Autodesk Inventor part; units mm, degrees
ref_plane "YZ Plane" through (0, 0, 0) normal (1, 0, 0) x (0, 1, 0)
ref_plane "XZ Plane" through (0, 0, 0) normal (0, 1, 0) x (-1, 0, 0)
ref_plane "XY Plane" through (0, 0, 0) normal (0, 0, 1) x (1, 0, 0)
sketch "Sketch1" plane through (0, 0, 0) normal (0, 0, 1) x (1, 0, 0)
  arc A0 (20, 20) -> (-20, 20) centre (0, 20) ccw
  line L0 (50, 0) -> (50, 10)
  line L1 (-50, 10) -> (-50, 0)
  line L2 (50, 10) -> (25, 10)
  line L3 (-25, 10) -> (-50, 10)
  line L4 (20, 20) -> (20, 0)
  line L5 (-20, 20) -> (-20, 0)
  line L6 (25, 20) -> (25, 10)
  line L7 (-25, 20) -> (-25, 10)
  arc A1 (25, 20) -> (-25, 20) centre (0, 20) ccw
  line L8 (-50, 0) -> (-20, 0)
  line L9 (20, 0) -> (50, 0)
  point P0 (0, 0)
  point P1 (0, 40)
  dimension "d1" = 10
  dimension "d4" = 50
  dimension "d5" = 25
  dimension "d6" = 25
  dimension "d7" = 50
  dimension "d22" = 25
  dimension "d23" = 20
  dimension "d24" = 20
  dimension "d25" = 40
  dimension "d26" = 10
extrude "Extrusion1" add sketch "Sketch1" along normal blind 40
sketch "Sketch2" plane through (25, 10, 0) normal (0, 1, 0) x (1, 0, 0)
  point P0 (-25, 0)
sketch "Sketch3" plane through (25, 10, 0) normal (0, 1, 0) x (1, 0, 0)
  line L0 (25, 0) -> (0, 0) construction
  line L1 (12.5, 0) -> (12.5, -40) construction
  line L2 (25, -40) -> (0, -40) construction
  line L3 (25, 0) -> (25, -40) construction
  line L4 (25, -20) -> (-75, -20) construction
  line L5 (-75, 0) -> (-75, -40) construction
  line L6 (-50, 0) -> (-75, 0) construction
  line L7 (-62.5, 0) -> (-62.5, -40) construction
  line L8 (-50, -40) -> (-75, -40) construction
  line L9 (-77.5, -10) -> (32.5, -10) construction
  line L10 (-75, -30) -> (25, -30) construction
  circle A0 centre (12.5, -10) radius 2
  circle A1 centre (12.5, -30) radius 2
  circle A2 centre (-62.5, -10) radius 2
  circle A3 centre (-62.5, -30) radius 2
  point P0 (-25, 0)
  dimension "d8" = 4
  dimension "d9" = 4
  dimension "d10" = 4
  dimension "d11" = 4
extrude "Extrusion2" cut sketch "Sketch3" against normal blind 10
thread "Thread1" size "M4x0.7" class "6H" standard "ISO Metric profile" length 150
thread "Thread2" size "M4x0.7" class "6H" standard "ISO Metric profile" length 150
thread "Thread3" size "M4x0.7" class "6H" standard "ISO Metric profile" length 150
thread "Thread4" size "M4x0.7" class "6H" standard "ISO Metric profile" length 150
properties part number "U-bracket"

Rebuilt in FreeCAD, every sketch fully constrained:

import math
import FreeCAD as App
import Part
import Sketcher
Q = App.Units.Quantity

doc = App.newDocument("Part")
body = doc.addObject("PartDesign::Body", "Body")

# Sketch on XY plane
sketch1 = doc.addObject("Sketcher::SketchObject", "Sketch")
body.addObject(sketch1)
sketch1.AttachmentSupport = (doc.XY_Plane, [""])
sketch1.MapMode = "FlatFace"
sketch1.addGeometry(Part.ArcOfCircle(Part.Circle(App.Vector(0, 20, 0), App.Vector(0, 0, 1), 20), math.radians(0), math.radians(180)), False)
sketch1.addGeometry(Part.LineSegment(App.Vector(20, 20, 0), App.Vector(20, 0, 0)), False)
sketch1.addGeometry(Part.LineSegment(App.Vector(20, 0, 0), App.Vector(50, 0, 0)), False)
sketch1.addGeometry(Part.LineSegment(App.Vector(50, 0, 0), App.Vector(50, 10, 0)), False)
sketch1.addGeometry(Part.LineSegment(App.Vector(50, 10, 0), App.Vector(25, 10, 0)), False)
sketch1.addGeometry(Part.LineSegment(App.Vector(25, 10, 0), App.Vector(25, 20, 0)), False)
sketch1.addGeometry(Part.ArcOfCircle(Part.Circle(App.Vector(0, 20, 0), App.Vector(0, 0, 1), 25), math.radians(0), math.radians(180)), False)
sketch1.addGeometry(Part.LineSegment(App.Vector(-25, 20, 0), App.Vector(-25, 10, 0)), False)
sketch1.addGeometry(Part.LineSegment(App.Vector(-25, 10, 0), App.Vector(-50, 10, 0)), False)
sketch1.addGeometry(Part.LineSegment(App.Vector(-50, 10, 0), App.Vector(-50, 0, 0)), False)
sketch1.addGeometry(Part.LineSegment(App.Vector(-50, 0, 0), App.Vector(-20, 0, 0)), False)
sketch1.addGeometry(Part.LineSegment(App.Vector(-20, 0, 0), App.Vector(-20, 20, 0)), False)
sketch1.addConstraint(Sketcher.Constraint("Tangent", 0, 1, 1, 1))
sketch1.addConstraint(Sketcher.Constraint("Coincident", 1, 2, 2, 1))
sketch1.addConstraint(Sketcher.Constraint("Coincident", 2, 2, 3, 1))
sketch1.addConstraint(Sketcher.Constraint("Coincident", 3, 2, 4, 1))
sketch1.addConstraint(Sketcher.Constraint("Coincident", 4, 2, 5, 1))
sketch1.addConstraint(Sketcher.Constraint("Tangent", 5, 2, 6, 1))
sketch1.addConstraint(Sketcher.Constraint("Tangent", 6, 2, 7, 1))
sketch1.addConstraint(Sketcher.Constraint("Coincident", 7, 2, 8, 1))
sketch1.addConstraint(Sketcher.Constraint("Coincident", 8, 2, 9, 1))
sketch1.addConstraint(Sketcher.Constraint("Coincident", 9, 2, 10, 1))
sketch1.addConstraint(Sketcher.Constraint("Coincident", 10, 2, 11, 1))
sketch1.addConstraint(Sketcher.Constraint("Tangent", 11, 2, 0, 2))
sketch1.addConstraint(Sketcher.Constraint("Vertical", 1))
sketch1.addConstraint(Sketcher.Constraint("Horizontal", 2))
sketch1.addConstraint(Sketcher.Constraint("Vertical", 3))
sketch1.addConstraint(Sketcher.Constraint("Horizontal", 4))
sketch1.addConstraint(Sketcher.Constraint("Vertical", 5))
sketch1.addConstraint(Sketcher.Constraint("Vertical", 7))
sketch1.addConstraint(Sketcher.Constraint("Horizontal", 8))
sketch1.addConstraint(Sketcher.Constraint("Vertical", 9))
sketch1.addConstraint(Sketcher.Constraint("Horizontal", 10))
sketch1.addConstraint(Sketcher.Constraint("Vertical", 11))
sketch1.addConstraint(Sketcher.Constraint("Coincident", 6, 3, 0, 3))
sketch1.addConstraint(Sketcher.Constraint("Symmetric", 2, 2, 9, 2, -1, 1))
sketch1.addConstraint(Sketcher.Constraint("Symmetric", 4, 2, 7, 2, -2))
sketch1.addConstraint(Sketcher.Constraint("PointOnObject", 1, 2, -1))
sketch1.addConstraint(Sketcher.Constraint("Equal", 3, 5))
sketch1.addConstraint(Sketcher.Constraint("Radius", 0, Q("20 mm")))
sketch1.addConstraint(Sketcher.Constraint("Radius", 6, Q("25 mm")))
sketch1.addConstraint(Sketcher.Constraint("DistanceX", 4, 2, 4, 1, Q("25 mm")))
sketch1.addConstraint(Sketcher.Constraint("DistanceY", 1, 2, 1, 1, Q("20 mm")))
pad1 = doc.addObject("PartDesign::Pad", "Pad")
body.addObject(pad1)
pad1.Profile = sketch1
pad1.Length = 40

# Sketch on XZ plane
sketch2 = doc.addObject("Sketcher::SketchObject", "Sketch001")
body.addObject(sketch2)
sketch2.AttachmentSupport = (doc.XZ_Plane, [""])
sketch2.MapMode = "FlatFace"
sketch2.AttachmentOffset = App.Placement(App.Vector(0, 0, -10), App.Rotation())
sketch2.addGeometry(Part.Circle(App.Vector(37.5, 10, 0), App.Vector(0, 0, 1), 2), False)
sketch2.addGeometry(Part.Circle(App.Vector(37.5, 30, 0), App.Vector(0, 0, 1), 2), False)
sketch2.addGeometry(Part.Circle(App.Vector(-37.5, 10, 0), App.Vector(0, 0, 1), 2), False)
sketch2.addGeometry(Part.Circle(App.Vector(-37.5, 30, 0), App.Vector(0, 0, 1), 2), False)
sketch2.addConstraint(Sketcher.Constraint("Equal", 0, 1))
sketch2.addConstraint(Sketcher.Constraint("Equal", 1, 2))
sketch2.addConstraint(Sketcher.Constraint("Equal", 2, 3))
sketch2.addConstraint(Sketcher.Constraint("Symmetric", 0, 3, 2, 3, -2))
sketch2.addConstraint(Sketcher.Constraint("Symmetric", 1, 3, 3, 3, -2))
sketch2.addConstraint(Sketcher.Constraint("Vertical", 0, 3, 1, 3))
sketch2.addConstraint(Sketcher.Constraint("Diameter", 0, Q("4 mm")))
sketch2.addConstraint(Sketcher.Constraint("DistanceY", -1, 1, 0, 3, Q("10 mm")))
sketch2.addConstraint(Sketcher.Constraint("DistanceY", -1, 1, 1, 3, Q("30 mm")))
sketch2.addConstraint(Sketcher.Constraint("DistanceX", 2, 3, 0, 3, Q("75 mm")))
pocket1 = doc.addObject("PartDesign::Pocket", "Pocket")
body.addObject(pocket1)
pocket1.Profile = sketch2
pocket1.Length = 10
pocket1.Reversed = True

doc.recompute()
